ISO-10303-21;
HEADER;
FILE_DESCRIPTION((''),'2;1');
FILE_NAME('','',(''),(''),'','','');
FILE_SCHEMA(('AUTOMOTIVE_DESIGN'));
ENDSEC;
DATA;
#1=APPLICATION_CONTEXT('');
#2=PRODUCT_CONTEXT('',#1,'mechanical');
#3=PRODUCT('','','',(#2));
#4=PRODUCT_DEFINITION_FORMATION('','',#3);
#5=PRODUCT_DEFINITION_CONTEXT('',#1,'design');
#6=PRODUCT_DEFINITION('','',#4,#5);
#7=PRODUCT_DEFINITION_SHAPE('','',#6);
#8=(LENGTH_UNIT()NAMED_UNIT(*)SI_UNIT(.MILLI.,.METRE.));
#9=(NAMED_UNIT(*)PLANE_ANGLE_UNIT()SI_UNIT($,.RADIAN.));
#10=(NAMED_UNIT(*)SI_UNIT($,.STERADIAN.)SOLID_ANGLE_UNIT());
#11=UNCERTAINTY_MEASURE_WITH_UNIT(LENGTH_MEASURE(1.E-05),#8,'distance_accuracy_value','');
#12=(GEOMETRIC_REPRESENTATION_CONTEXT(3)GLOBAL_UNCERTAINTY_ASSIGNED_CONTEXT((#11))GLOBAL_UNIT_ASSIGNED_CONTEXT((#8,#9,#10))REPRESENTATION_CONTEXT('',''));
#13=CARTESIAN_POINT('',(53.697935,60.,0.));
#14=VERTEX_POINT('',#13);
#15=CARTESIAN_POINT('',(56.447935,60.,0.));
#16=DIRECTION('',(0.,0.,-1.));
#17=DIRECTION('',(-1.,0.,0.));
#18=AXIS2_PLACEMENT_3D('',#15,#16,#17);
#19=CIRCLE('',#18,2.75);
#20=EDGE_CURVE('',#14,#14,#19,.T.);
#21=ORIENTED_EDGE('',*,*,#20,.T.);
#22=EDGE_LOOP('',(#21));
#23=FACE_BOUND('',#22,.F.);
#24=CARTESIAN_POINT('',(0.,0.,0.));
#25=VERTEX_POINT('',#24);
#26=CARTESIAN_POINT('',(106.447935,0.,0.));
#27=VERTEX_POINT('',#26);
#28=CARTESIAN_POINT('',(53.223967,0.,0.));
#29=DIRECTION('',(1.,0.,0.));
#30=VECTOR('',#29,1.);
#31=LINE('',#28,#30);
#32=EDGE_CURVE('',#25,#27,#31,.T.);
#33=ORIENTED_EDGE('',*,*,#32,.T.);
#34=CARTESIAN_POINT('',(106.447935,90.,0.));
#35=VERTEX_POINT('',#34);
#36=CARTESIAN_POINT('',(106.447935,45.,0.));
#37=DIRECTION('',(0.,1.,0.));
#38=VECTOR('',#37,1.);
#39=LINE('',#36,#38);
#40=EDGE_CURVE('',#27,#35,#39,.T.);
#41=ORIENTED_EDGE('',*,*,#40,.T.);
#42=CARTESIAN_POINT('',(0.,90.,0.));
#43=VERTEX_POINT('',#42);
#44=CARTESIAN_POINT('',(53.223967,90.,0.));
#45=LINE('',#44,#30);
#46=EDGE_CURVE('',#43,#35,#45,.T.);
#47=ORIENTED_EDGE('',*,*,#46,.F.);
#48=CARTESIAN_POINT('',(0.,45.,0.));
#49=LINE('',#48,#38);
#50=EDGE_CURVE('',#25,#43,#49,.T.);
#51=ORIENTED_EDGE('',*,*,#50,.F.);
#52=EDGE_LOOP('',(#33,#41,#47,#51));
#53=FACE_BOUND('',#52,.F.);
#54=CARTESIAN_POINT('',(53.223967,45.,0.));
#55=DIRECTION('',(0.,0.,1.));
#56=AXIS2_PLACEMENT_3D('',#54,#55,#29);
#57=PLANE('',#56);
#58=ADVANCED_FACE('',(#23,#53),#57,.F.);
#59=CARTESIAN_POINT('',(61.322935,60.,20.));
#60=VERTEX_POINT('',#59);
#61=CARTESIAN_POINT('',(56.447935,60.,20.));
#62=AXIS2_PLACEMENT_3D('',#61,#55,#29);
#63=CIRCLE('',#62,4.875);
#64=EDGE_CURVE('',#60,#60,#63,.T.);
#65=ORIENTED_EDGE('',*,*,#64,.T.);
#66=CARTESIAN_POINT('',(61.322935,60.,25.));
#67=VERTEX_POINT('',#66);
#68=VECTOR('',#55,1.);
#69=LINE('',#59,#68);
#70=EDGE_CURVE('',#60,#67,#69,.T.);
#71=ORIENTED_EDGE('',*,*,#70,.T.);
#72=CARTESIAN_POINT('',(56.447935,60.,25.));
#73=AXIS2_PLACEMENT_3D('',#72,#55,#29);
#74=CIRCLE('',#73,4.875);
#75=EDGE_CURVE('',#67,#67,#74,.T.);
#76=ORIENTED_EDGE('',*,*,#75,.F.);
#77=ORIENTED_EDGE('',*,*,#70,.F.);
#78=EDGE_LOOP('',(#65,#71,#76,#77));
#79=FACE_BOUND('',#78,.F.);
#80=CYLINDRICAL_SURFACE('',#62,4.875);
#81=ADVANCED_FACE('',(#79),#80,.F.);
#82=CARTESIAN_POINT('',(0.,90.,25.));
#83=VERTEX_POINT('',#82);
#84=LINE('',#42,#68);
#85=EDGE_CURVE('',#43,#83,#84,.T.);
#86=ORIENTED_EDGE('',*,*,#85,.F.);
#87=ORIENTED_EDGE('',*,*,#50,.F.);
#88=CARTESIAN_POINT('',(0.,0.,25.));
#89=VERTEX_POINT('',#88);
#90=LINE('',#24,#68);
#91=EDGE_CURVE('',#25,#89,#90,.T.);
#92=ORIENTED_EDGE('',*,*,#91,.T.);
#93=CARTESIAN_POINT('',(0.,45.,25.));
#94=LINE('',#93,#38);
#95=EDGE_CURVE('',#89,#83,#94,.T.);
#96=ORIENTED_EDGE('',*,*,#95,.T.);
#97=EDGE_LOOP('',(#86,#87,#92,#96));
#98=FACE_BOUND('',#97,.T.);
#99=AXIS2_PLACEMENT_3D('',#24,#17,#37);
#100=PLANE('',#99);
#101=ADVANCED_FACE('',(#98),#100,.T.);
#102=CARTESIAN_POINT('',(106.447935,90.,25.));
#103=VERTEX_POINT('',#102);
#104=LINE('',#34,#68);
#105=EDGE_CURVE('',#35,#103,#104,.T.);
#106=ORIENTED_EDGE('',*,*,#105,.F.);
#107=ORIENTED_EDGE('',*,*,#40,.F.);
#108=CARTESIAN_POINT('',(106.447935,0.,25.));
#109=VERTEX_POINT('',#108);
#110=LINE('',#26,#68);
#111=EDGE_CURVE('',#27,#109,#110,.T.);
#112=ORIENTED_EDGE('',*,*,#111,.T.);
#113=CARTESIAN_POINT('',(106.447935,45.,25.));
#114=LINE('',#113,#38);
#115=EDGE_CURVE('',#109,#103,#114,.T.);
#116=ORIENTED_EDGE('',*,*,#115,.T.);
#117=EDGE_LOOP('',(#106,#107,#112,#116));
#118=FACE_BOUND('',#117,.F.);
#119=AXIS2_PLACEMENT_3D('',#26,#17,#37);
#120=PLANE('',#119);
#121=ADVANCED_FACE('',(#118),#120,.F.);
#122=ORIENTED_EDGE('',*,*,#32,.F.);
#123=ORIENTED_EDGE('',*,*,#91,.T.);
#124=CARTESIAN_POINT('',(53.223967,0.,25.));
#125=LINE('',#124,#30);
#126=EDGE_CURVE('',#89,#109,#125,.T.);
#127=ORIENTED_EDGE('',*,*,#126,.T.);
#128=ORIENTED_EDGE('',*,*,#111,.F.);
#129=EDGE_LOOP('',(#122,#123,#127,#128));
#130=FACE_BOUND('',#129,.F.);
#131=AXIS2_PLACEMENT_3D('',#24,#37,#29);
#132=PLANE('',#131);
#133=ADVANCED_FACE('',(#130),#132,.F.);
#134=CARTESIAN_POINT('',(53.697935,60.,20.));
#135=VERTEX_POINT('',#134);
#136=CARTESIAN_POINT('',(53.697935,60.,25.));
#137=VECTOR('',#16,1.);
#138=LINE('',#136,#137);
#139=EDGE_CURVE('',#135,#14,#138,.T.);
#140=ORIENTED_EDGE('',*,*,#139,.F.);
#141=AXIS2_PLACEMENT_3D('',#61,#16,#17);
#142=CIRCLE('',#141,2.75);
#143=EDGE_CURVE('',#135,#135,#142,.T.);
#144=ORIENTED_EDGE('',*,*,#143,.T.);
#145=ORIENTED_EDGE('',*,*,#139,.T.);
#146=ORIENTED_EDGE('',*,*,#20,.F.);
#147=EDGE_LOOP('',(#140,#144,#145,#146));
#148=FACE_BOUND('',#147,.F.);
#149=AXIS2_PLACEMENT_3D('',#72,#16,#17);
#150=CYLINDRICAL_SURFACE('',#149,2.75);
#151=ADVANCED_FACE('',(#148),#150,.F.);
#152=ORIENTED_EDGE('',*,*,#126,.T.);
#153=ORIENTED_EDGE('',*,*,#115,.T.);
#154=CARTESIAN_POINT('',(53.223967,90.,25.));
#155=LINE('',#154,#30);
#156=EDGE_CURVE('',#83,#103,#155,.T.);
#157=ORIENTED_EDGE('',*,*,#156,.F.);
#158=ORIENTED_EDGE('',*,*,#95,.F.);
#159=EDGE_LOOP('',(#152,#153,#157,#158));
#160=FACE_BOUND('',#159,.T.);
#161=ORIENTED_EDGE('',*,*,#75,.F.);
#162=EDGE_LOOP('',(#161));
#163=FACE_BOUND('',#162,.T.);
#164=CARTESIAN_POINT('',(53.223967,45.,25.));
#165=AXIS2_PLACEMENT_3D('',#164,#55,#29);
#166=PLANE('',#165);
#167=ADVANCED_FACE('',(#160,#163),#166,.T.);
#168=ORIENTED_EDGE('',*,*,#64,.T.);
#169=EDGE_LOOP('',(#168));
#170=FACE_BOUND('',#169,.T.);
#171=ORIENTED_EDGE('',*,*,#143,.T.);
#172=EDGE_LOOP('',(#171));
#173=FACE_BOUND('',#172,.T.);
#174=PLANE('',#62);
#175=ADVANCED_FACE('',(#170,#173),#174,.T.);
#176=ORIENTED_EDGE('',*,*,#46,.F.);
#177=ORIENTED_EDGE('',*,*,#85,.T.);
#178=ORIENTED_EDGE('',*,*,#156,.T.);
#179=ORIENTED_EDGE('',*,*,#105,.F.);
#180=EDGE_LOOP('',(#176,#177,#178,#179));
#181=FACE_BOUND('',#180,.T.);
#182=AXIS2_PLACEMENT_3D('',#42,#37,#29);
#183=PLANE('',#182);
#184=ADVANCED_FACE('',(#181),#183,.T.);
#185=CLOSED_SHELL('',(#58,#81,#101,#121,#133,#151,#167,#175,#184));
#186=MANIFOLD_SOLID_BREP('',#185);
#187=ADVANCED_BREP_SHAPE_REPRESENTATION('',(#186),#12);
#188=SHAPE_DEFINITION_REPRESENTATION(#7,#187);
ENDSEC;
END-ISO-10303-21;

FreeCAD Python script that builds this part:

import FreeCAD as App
import Part
import Sketcher

V = App.Vector

doc = App.newDocument("Part")
params = doc.addObject("Spreadsheet::Sheet", "Params")
for row, (alias, value) in enumerate([
    ("sketch1_height", "90 mm"),
    ("pad1_length", "25 mm"),
    ("sketch2_diameter", "5.5 mm"),
    ("hole_diameter", "5.5 mm"),
    ("hole_cbore_diameter", "9.75 mm"),
    ("hole_cbore_depth", "5 mm"),
], start=1):
    params.set(f"A{row}", alias)
    params.set(f"B{row}", "=" + value)
    params.setAlias(f"B{row}", alias)

body = doc.addObject("PartDesign::Body", "Body")

# Sketch on XY plane
sketch1 = body.newObject("Sketcher::SketchObject", "Sketch")
sketch1.AttachmentSupport = (doc.getObject("XY_Plane"), [""])
sketch1.MapMode = "FlatFace"
sketch1.addGeometry([
    Part.LineSegment(V(0, 90, 0), V(0, 0, 0)),
    Part.LineSegment(V(0, 0, 0), V(106, 0, 0)),
    Part.LineSegment(V(106, 0, 0), V(106, 90, 0)),
    Part.LineSegment(V(106, 90, 0), V(0, 90, 0)),
], False)
sketch1.addConstraint([
    Sketcher.Constraint("Coincident", 0, 2, 1, 1),
    Sketcher.Constraint("Coincident", 1, 2, 2, 1),
    Sketcher.Constraint("Coincident", 2, 2, 3, 1),
    Sketcher.Constraint("Coincident", 3, 2, 0, 1),
    Sketcher.Constraint("Vertical", 0),
    Sketcher.Constraint("Horizontal", 1),
    Sketcher.Constraint("Vertical", 2),
    Sketcher.Constraint("Horizontal", 3),
    Sketcher.Constraint("Coincident", 0, 2, -1, 1),
    Sketcher.Constraint("DistanceY", 0, 2, 0, 1, 90.0),
    Sketcher.Constraint("DistanceX", 1, 1, 1, 2, 106.447935),
])
sketch1.setExpression("Constraints[9]", "Params.sketch1_height")
pad1 = body.newObject("PartDesign::Pad", "Pad")
pad1.Profile = sketch1
pad1.setExpression("Length", "Params.pad1_length")

# Sketch on XY plane
sketch2 = body.newObject("Sketcher::SketchObject", "Sketch001")
sketch2.AttachmentSupport = (doc.getObject("XY_Plane"), [""])
sketch2.MapMode = "FlatFace"
sketch2.AttachmentOffset = App.Placement(V(0, 0, 25), App.Rotation())
sketch2.addGeometry(Part.Circle(V(56.4, 60, 0), V(0, 0, 1), 2.8), False)
sketch2.addConstraint([
    Sketcher.Constraint("Diameter", 0, 5.5),
    Sketcher.Constraint("DistanceY", -1, 1, 0, 3, 60.0),
    Sketcher.Constraint("DistanceX", -1, 1, 0, 3, 56.447935),
])
sketch2.setExpression("Constraints[0]", "Params.sketch2_diameter")
doc.recompute()
hole = body.newObject("PartDesign::Hole", "Hole")
hole.Profile = sketch2
hole.ThreadType = "None"
hole.setExpression("Diameter", "Params.hole_diameter")
hole.DepthType = "ThroughAll"
hole.HoleCutType = "Counterbore"
hole.setExpression("HoleCutDiameter", "Params.hole_cbore_diameter")
hole.setExpression("HoleCutDepth", "Params.hole_cbore_depth")

doc.recompute()
